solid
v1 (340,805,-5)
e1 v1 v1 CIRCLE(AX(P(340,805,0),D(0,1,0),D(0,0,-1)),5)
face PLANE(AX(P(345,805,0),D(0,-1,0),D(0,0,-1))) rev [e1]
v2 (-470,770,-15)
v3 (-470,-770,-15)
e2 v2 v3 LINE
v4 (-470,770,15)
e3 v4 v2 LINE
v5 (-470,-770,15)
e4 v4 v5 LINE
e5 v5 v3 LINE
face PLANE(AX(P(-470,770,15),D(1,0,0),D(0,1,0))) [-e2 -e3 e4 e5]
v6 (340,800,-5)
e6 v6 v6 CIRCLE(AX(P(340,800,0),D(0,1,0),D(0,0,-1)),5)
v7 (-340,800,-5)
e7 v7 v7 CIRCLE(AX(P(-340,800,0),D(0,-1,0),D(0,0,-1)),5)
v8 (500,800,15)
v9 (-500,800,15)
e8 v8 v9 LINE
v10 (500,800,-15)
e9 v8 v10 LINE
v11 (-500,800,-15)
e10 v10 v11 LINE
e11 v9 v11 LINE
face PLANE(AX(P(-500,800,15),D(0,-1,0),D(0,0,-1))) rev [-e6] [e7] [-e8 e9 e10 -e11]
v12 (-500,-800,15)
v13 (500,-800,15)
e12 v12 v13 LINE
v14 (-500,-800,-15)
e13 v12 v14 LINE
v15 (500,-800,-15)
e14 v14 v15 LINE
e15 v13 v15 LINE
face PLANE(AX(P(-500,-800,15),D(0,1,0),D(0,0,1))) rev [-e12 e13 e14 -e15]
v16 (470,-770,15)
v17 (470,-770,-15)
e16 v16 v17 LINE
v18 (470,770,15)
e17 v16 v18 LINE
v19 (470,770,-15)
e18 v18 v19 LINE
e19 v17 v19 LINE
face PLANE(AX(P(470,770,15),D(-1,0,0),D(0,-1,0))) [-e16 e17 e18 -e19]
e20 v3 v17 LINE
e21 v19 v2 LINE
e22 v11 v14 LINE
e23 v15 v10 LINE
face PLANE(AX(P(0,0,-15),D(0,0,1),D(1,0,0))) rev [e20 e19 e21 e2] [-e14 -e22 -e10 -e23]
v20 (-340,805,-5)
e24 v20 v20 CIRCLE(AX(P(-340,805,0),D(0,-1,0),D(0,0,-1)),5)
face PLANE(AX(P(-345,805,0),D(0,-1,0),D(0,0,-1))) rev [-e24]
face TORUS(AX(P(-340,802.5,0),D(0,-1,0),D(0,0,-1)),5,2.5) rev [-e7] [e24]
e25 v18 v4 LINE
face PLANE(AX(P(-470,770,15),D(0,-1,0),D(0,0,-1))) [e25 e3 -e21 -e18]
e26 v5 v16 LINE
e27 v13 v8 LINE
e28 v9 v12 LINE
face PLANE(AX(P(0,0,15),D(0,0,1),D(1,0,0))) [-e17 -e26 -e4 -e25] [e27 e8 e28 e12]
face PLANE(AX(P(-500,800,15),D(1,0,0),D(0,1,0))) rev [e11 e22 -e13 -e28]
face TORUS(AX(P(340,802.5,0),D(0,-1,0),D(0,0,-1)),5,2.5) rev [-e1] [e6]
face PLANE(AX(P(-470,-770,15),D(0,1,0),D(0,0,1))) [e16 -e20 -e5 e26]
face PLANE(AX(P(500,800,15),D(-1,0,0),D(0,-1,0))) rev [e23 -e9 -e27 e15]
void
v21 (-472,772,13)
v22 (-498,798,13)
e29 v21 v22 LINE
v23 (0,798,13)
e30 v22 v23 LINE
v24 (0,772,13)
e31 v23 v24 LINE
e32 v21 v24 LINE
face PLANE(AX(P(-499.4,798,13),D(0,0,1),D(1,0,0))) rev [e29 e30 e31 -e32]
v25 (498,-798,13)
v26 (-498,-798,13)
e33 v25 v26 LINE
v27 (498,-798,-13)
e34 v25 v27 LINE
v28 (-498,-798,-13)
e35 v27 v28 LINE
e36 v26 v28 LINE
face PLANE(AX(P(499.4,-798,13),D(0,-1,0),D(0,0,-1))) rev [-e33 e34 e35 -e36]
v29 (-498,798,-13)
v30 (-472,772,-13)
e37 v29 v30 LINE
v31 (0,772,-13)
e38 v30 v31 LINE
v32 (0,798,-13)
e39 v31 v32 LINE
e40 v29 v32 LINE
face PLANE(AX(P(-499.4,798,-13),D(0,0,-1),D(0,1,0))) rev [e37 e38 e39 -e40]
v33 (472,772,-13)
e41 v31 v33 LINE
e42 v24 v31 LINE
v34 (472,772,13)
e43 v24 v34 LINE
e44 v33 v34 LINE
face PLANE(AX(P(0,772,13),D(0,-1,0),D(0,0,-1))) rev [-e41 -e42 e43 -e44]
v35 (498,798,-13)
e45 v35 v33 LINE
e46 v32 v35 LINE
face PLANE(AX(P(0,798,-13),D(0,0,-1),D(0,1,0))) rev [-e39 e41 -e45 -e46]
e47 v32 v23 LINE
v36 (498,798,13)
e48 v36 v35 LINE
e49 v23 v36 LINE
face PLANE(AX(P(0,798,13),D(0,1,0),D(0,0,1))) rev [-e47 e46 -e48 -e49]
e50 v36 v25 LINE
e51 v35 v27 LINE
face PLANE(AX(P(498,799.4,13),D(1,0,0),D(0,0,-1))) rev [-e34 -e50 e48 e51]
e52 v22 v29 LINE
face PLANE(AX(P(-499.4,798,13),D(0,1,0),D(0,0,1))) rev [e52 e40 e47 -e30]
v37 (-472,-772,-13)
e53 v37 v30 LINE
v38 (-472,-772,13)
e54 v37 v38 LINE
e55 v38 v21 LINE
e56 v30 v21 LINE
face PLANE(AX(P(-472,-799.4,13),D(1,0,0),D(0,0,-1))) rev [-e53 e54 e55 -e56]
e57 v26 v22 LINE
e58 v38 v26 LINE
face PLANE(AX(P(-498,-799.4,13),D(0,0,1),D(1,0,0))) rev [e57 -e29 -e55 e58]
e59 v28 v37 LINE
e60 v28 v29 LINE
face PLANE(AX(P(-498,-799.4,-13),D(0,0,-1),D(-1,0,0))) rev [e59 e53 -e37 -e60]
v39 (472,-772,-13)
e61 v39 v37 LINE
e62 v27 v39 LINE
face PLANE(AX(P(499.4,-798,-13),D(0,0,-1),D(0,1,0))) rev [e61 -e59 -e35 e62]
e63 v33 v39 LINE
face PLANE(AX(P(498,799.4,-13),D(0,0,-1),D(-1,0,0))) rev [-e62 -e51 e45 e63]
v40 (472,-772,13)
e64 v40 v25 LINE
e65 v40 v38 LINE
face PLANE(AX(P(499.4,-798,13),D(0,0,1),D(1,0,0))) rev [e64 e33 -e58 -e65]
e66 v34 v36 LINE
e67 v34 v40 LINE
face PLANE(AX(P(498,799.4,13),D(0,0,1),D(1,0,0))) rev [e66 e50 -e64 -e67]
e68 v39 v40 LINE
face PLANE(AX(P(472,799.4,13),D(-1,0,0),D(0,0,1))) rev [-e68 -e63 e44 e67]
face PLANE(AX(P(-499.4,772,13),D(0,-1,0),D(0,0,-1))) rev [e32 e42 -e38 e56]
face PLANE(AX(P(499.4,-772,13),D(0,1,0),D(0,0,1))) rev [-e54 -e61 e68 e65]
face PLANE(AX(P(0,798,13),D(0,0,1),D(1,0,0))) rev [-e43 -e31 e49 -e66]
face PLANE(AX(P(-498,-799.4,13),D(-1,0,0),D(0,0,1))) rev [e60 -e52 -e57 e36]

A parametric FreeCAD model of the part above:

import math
import FreeCAD as App
import Part
import Sketcher

V = App.Vector


def add_polygon(sketch, points):
    """Adds a closed chain of lines whose ends are joined by coincident constraints."""
    first, n = sketch.GeometryCount, len(points)
    for a, b in zip(points, points[1:] + points[:1]):
        sketch.addGeometry(Part.LineSegment(App.Vector(*a, 0), App.Vector(*b, 0)), False)
    for i in range(n):
        sketch.addConstraint(Sketcher.Constraint("Coincident", first + i, 2, first + (i + 1) % n, 1))

doc = App.newDocument("Part")
params = doc.addObject("Spreadsheet::Sheet", "Params")
for row, (alias, value) in enumerate([
    ("sketch1_width", "1000 mm"),
    ("sketch1_width2", "940 mm"),
    ("sketch1_height", "1600 mm"),
    ("sketch1_height2", "1540 mm"),
    ("pad1_length", "30 mm"),
    ("sketch2_width", "26 mm"),
    ("sketch3_width", "970 mm"),
    ("sketch3_height", "1570 mm"),
    ("sketch4_radius", "2.5 mm"),
    ("revolution_angle", "360 deg"),
], start=1):
    params.set(f"A{row}", alias)
    params.set(f"B{row}", "=" + value)
    params.setAlias(f"B{row}", alias)

body = doc.addObject("PartDesign::Body", "Body")

sketch1 = doc.addObject("Sketcher::SketchObject", "Sketch")
body.addObject(sketch1)
sketch1.AttachmentSupport = (doc.XY_Plane, [""])
sketch1.MapMode = "FlatFace"
add_polygon(sketch1, [(-500, 800), (-500, -800), (500, -800), (500, 800)])
add_polygon(sketch1, [(470, -770), (-470, -770), (-470, 770), (470, 770)])
sketch1.addConstraint([
    Sketcher.Constraint("Vertical", 0),
    Sketcher.Constraint("Horizontal", 1),
    Sketcher.Constraint("Vertical", 2),
    Sketcher.Constraint("Horizontal", 3),
    Sketcher.Constraint("Horizontal", 4),
    Sketcher.Constraint("Vertical", 5),
    Sketcher.Constraint("Horizontal", 6),
    Sketcher.Constraint("Vertical", 7),
    Sketcher.Constraint("Symmetric", 0, 2, 2, 2, -1, 1),
    Sketcher.Constraint("Symmetric", 4, 2, 6, 2, -1, 1),
    Sketcher.Constraint("DistanceX", 1, 1, 1, 2, 1000.0),
    Sketcher.Constraint("DistanceX", 4, 2, 4, 1, 940.0),
    Sketcher.Constraint("DistanceY", 0, 2, 0, 1, 1600.0),
    Sketcher.Constraint("DistanceY", 5, 1, 5, 2, 1540.0),
])
sketch1.setExpression("Constraints[18]", "Params.sketch1_width")
sketch1.setExpression("Constraints[19]", "Params.sketch1_width2")
sketch1.setExpression("Constraints[20]", "Params.sketch1_height")
sketch1.setExpression("Constraints[21]", "Params.sketch1_height2")
pad1 = doc.addObject("PartDesign::Pad", "Pad")
body.addObject(pad1)
pad1.Profile = sketch1
pad1.setExpression("Length", "Params.pad1_length")
pad1.Midplane = True

sketch2 = doc.addObject("Sketcher::SketchObject", "Sketch001")
body.addObject(sketch2)
sketch2.AttachmentSupport = (doc.YZ_Plane, [""])
sketch2.MapMode = "FlatFace"
add_polygon(sketch2, [(798, 13), (772, 13), (772, -13), (798, -13)])
sketch2.addConstraint([
    Sketcher.Constraint("Horizontal", 0),
    Sketcher.Constraint("Vertical", 1),
    Sketcher.Constraint("Horizontal", 2),
    Sketcher.Constraint("Vertical", 3),
    Sketcher.Constraint("Equal", 2, 1),
    Sketcher.Constraint("DistanceX", 0, 2, 0, 1, 26.0),
    Sketcher.Constraint("DistanceX", -1, 1, 0, 2, 772.0),
    Sketcher.Constraint("DistanceY", -1, 1, 0, 2, 13.0),
])
sketch2.setExpression("Constraints[9]", "Params.sketch2_width")

sketch3 = doc.addObject("Sketcher::SketchObject", "Sketch002")
body.addObject(sketch3)
sketch3.AttachmentSupport = (doc.XY_Plane, [""])
sketch3.MapMode = "FlatFace"
add_polygon(sketch3, [(-485, 785), (-485, -785), (485, -785), (485, 785)])
sketch3.addConstraint([
    Sketcher.Constraint("Vertical", 0),
    Sketcher.Constraint("Horizontal", 1),
    Sketcher.Constraint("Vertical", 2),
    Sketcher.Constraint("Horizontal", 3),
    Sketcher.Constraint("Symmetric", 0, 2, 2, 2, -1, 1),
    Sketcher.Constraint("DistanceX", 1, 1, 1, 2, 970.0),
    Sketcher.Constraint("DistanceY", 0, 2, 0, 1, 1570.0),
])
sketch3.setExpression("Constraints[9]", "Params.sketch3_width")
sketch3.setExpression("Constraints[10]", "Params.sketch3_height")
doc.recompute()

subtractivepipe = doc.addObject("PartDesign::SubtractivePipe", "SubtractivePipe")
body.addObject(subtractivepipe)
subtractivepipe.Profile = sketch2
subtractivepipe.Spine = (sketch3, ["Edge1", "Edge2", "Edge3", "Edge4"])
subtractivepipe.Transition = "Right corner"

sketch4 = doc.addObject("Sketcher::SketchObject", "Sketch003")
body.addObject(sketch4)
sketch4.AttachmentSupport = (doc.XY_Plane, [""])
sketch4.MapMode = "FlatFace"
sketch4.addGeometry([
    Part.LineSegment(V(-340, 800, 0), V(-340, 805, 0)),
    Part.LineSegment(V(-340, 805, 0), V(-345, 805, 0)),
    Part.ArcOfCircle(Part.Circle(V(-345, 802.5, 0), V(0, 0, 1), 2.5), math.radians(-90), math.radians(90)),
    Part.LineSegment(V(-345, 800, 0), V(-340, 800, 0)),
], False)
sketch4.addGeometry(Part.LineSegment(V(-340, 800, 0), V(-340, 805, 0)), True)
sketch4.addConstraint([
    Sketcher.Constraint("Coincident", 0, 2, 1, 1),
    Sketcher.Constraint("Tangent", 1, 2, 2, 2),
    Sketcher.Constraint("Tangent", 2, 1, 3, 1),
    Sketcher.Constraint("Coincident", 3, 2, 0, 1),
    Sketcher.Constraint("Vertical", 0),
    Sketcher.Constraint("Horizontal", 1),
    Sketcher.Constraint("Horizontal", 3),
    Sketcher.Constraint("Vertical", 4),
    Sketcher.Constraint("Coincident", 4, 1, 3, 2),
    Sketcher.Constraint("Horizontal", 1, 2, 4, 2),
    Sketcher.Constraint("Equal", 3, 0),
    Sketcher.Constraint("Radius", 2, 2.5),
    Sketcher.Constraint("DistanceX", 2, 3, -1, 1, 345.0),
    Sketcher.Constraint("DistanceY", -1, 1, 0, 2, 805.0),
])
sketch4.setExpression("Constraints[11]", "Params.sketch4_radius")
revolution = doc.addObject("PartDesign::Revolution", "Revolution")
body.addObject(revolution)
revolution.Profile = sketch4
revolution.ReferenceAxis = (sketch4, ["Axis0"])
revolution.setExpression("Angle", "Params.revolution_angle")
doc.recompute()

mirrored = doc.addObject("PartDesign::Mirrored", "Mirrored")
body.addObject(mirrored)
mirrored.Originals = [revolution]
mirrored.MirrorPlane = (doc.YZ_Plane, [""])
body.Tip = mirrored

doc.recompute()
